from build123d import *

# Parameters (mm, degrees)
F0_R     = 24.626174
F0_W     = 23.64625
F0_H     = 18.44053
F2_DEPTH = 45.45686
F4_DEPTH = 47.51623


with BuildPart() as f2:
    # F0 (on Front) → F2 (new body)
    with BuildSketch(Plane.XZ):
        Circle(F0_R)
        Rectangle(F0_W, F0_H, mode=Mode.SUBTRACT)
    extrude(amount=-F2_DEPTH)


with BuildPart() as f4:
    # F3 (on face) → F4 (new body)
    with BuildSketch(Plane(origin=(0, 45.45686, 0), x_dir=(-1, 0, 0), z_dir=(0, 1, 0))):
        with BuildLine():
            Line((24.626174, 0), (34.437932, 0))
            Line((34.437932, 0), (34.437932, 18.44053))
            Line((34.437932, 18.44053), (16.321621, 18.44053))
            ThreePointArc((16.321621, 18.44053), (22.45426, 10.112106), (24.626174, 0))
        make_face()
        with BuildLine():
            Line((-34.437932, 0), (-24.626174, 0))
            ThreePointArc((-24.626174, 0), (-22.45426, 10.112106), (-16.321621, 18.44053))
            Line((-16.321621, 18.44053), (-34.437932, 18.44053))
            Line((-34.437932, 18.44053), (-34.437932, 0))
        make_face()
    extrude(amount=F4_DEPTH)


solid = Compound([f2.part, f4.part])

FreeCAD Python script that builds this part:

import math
import FreeCAD as App
import Part
import Sketcher
from FreeCAD import Vector


def add_polygon(sketch, points):
    """Adds a closed chain of lines whose ends are joined by coincident constraints."""
    first, n = sketch.GeometryCount, len(points)
    for a, b in zip(points, points[1:] + points[:1]):
        sketch.addGeometry(Part.LineSegment(App.Vector(*a, 0), App.Vector(*b, 0)), False)
    for i in range(n):
        sketch.addConstraint(Sketcher.Constraint("Coincident", first + i, 2, first + (i + 1) % n, 1))

doc = App.newDocument("Part")
params = doc.addObject("Spreadsheet::Sheet", "Params")
for row, (alias, value) in enumerate([
    ("pad1_length", "45.45686 mm"),
    ("pad2_length", "47.51623 mm"),
], start=1):
    params.set(f"A{row}", alias)
    params.set(f"B{row}", "=" + value)
    params.setAlias(f"B{row}", alias)

body = doc.addObject("PartDesign::Body", "Body")

# Sketch on XZ plane
sketch1 = body.newObject("Sketcher::SketchObject", "Sketch")
sketch1.AttachmentSupport = (doc.getObject("XZ_Plane"), [""])
sketch1.MapMode = "FlatFace"
sketch1.addGeometry(Part.Circle(Vector(0, 0, 0), Vector(0, 0, 1), 24.626174), False)  # 0
add_polygon(sketch1, [(11.823125, -9.220265), (-11.823125, -9.220265), (-11.823125, 9.220265), (11.823125, 9.220265)])  # lines 1-4
sketch1.addConstraint([
    Sketcher.Constraint("Horizontal", 1),
    Sketcher.Constraint("Vertical", 2),
    Sketcher.Constraint("Horizontal", 3),
    Sketcher.Constraint("Vertical", 4),
    Sketcher.Constraint("Coincident", 0, 3, -1, 1),
    Sketcher.Constraint("Symmetric", 1, 2, 3, 2, -1, 1),
    Sketcher.Constraint("Diameter", 0, 49.252348),
    Sketcher.Constraint("DistanceX", 1, 2, 1, 1, 23.64625),
    Sketcher.Constraint("DistanceY", 2, 1, 2, 2, 18.44053),
])
pad1 = body.newObject("PartDesign::Pad", "Pad")
pad1.Profile = sketch1
pad1.setExpression("Length", "Params.pad1_length")
pad1.Reversed = True
body2 = doc.addObject("PartDesign::Body", "Body001")
body2.AllowCompound = True

# Sketch on XZ plane
sketch2 = body2.newObject("Sketcher::SketchObject", "Sketch001")
sketch2.AttachmentSupport = (doc.getObject("XZ_Plane001"), [""])
sketch2.MapMode = "FlatFace"
sketch2.AttachmentOffset = App.Placement(Vector(0, 0, -45.45686), App.Rotation())
sketch2.addGeometry([
    Part.LineSegment(Vector(-24.626174, 0, 0), Vector(-34.437932, 0, 0)),  # 0
    Part.LineSegment(Vector(-34.437932, 0, 0), Vector(-34.437932, 18.44053, 0)),  # 1
    Part.LineSegment(Vector(-34.437932, 18.44053, 0), Vector(-16.321621, 18.44053, 0)),  # 2
    Part.ArcOfCircle(Part.Circle(Vector(-0.000006, 0.000003, 0), Vector(0, 0, 1), 24.626168), math.radians(131.511876), math.radians(180.000007)),  # 3
    Part.LineSegment(Vector(34.437932, 0, 0), Vector(24.626174, 0, 0)),  # 4
    Part.ArcOfCircle(Part.Circle(Vector(0.000006, 0.000003, 0), Vector(0, 0, 1), 24.626168), math.radians(-0.000007), math.radians(48.488124)),  # 5
    Part.LineSegment(Vector(16.321621, 18.44053, 0), Vector(34.437932, 18.44053, 0)),  # 6
    Part.LineSegment(Vector(34.437932, 18.44053, 0), Vector(34.437932, 0, 0)),  # 7
], False)
sketch2.addConstraint([
    Sketcher.Constraint("Coincident", 0, 2, 1, 1),
    Sketcher.Constraint("Coincident", 1, 2, 2, 1),
    Sketcher.Constraint("Coincident", 2, 2, 3, 1),
    Sketcher.Constraint("Coincident", 3, 2, 0, 1),
    Sketcher.Constraint("Coincident", 4, 2, 5, 1),
    Sketcher.Constraint("Coincident", 5, 2, 6, 1),
    Sketcher.Constraint("Coincident", 6, 2, 7, 1),
    Sketcher.Constraint("Coincident", 7, 2, 4, 1),
    Sketcher.Constraint("Horizontal", 0),
    Sketcher.Constraint("Vertical", 1),
    Sketcher.Constraint("Horizontal", 2),
    Sketcher.Constraint("Horizontal", 4),
    Sketcher.Constraint("Horizontal", 6),
    Sketcher.Constraint("Vertical", 7),
    Sketcher.Constraint("Coincident", 3, 3, -1, 1),
    Sketcher.Constraint("Coincident", 5, 3, -1, 1),
    Sketcher.Constraint("Equal", 3, 5),
    Sketcher.Constraint("Symmetric", 0, 2, 7, 2, -1, 1),
    Sketcher.Constraint("PointOnObject", 0, 2, -1),
    Sketcher.Constraint("Horizontal", 2, 2, 5, 2),
    Sketcher.Constraint("Radius", 3, 24.626168),
    Sketcher.Constraint("DistanceX", 0, 2, 0, 1, 9.811758),
    Sketcher.Constraint("DistanceX", 2, 1, 2, 2, 18.116311),
])
pad2 = body2.newObject("PartDesign::Pad", "Pad001")
pad2.Profile = sketch2
pad2.setExpression("Length", "Params.pad2_length")
pad2.Reversed = True

doc.recompute()
